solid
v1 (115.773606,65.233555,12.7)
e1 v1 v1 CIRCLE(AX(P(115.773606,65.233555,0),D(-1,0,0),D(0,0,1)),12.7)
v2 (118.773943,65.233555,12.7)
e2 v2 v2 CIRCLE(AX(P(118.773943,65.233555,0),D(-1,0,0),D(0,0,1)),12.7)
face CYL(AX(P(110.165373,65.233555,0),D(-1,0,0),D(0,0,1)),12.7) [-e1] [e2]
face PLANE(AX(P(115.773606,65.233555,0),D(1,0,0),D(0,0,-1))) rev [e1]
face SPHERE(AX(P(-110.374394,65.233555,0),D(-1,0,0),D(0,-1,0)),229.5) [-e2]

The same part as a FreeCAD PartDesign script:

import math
import FreeCAD as App
import Part
import Sketcher
from FreeCAD import Vector
Q = App.Units.Quantity

doc = App.newDocument("Part")
body = doc.addObject("PartDesign::Body", "Body")

# Sketch on XY plane
sketch1 = body.newObject("Sketcher::SketchObject", "Sketch")
sketch1.AttachmentSupport = (doc.getObject("XY_Plane"), [""])
sketch1.MapMode = "FlatFace"
sketch1.addGeometry([
    Part.LineSegment(Vector(115.8, 77.9, 0), Vector(115.8, 65.2, 0)),
    Part.LineSegment(Vector(115.8, 65.2, 0), Vector(119.1, 65.2, 0)),
    Part.ArcOfCircle(Part.Circle(Vector(-110.4, 65.2, 0), Vector(0, 0, 1), 229.5), math.radians(0), math.radians(3.17)),
    Part.LineSegment(Vector(118.8, 77.9, 0), Vector(115.8, 77.9, 0)),
], False)
sketch1.addGeometry(Part.LineSegment(Vector(-110.4, 65.2, 0), Vector(119.1, 65.2, 0)), True)  # axis
sketch1.addConstraint([
    Sketcher.Constraint("Coincident", 0, 2, 1, 1),
    Sketcher.Constraint("Coincident", 1, 2, 2, 1),
    Sketcher.Constraint("Coincident", 2, 2, 3, 1),
    Sketcher.Constraint("Coincident", 3, 2, 0, 1),
    Sketcher.Constraint("Vertical", 0),
    Sketcher.Constraint("Horizontal", 1),
    Sketcher.Constraint("Horizontal", 3),
    Sketcher.Constraint("Horizontal", 4),
    Sketcher.Constraint("Coincident", 4, 1, 2, 3),
    Sketcher.Constraint("Coincident", 4, 2, 1, 2),
    Sketcher.Constraint("Radius", 2, Q("229.5 mm")),
    Sketcher.Constraint("DistanceY", 0, 2, 0, 1, Q("12.7 mm")),
    Sketcher.Constraint("DistanceX", 1, 1, 1, 2, Q("3.352 mm")),
    Sketcher.Constraint("DistanceX", 2, 3, -1, 1, Q("110.374394 mm")),
    Sketcher.Constraint("DistanceY", -1, 1, 2, 3, Q("65.233555 mm")),
])
revolution = body.newObject("PartDesign::Revolution", "Revolution")
revolution.Profile = sketch1
revolution.ReferenceAxis = (sketch1, ["Axis0"])
revolution.Angle = 360

doc.recompute()
